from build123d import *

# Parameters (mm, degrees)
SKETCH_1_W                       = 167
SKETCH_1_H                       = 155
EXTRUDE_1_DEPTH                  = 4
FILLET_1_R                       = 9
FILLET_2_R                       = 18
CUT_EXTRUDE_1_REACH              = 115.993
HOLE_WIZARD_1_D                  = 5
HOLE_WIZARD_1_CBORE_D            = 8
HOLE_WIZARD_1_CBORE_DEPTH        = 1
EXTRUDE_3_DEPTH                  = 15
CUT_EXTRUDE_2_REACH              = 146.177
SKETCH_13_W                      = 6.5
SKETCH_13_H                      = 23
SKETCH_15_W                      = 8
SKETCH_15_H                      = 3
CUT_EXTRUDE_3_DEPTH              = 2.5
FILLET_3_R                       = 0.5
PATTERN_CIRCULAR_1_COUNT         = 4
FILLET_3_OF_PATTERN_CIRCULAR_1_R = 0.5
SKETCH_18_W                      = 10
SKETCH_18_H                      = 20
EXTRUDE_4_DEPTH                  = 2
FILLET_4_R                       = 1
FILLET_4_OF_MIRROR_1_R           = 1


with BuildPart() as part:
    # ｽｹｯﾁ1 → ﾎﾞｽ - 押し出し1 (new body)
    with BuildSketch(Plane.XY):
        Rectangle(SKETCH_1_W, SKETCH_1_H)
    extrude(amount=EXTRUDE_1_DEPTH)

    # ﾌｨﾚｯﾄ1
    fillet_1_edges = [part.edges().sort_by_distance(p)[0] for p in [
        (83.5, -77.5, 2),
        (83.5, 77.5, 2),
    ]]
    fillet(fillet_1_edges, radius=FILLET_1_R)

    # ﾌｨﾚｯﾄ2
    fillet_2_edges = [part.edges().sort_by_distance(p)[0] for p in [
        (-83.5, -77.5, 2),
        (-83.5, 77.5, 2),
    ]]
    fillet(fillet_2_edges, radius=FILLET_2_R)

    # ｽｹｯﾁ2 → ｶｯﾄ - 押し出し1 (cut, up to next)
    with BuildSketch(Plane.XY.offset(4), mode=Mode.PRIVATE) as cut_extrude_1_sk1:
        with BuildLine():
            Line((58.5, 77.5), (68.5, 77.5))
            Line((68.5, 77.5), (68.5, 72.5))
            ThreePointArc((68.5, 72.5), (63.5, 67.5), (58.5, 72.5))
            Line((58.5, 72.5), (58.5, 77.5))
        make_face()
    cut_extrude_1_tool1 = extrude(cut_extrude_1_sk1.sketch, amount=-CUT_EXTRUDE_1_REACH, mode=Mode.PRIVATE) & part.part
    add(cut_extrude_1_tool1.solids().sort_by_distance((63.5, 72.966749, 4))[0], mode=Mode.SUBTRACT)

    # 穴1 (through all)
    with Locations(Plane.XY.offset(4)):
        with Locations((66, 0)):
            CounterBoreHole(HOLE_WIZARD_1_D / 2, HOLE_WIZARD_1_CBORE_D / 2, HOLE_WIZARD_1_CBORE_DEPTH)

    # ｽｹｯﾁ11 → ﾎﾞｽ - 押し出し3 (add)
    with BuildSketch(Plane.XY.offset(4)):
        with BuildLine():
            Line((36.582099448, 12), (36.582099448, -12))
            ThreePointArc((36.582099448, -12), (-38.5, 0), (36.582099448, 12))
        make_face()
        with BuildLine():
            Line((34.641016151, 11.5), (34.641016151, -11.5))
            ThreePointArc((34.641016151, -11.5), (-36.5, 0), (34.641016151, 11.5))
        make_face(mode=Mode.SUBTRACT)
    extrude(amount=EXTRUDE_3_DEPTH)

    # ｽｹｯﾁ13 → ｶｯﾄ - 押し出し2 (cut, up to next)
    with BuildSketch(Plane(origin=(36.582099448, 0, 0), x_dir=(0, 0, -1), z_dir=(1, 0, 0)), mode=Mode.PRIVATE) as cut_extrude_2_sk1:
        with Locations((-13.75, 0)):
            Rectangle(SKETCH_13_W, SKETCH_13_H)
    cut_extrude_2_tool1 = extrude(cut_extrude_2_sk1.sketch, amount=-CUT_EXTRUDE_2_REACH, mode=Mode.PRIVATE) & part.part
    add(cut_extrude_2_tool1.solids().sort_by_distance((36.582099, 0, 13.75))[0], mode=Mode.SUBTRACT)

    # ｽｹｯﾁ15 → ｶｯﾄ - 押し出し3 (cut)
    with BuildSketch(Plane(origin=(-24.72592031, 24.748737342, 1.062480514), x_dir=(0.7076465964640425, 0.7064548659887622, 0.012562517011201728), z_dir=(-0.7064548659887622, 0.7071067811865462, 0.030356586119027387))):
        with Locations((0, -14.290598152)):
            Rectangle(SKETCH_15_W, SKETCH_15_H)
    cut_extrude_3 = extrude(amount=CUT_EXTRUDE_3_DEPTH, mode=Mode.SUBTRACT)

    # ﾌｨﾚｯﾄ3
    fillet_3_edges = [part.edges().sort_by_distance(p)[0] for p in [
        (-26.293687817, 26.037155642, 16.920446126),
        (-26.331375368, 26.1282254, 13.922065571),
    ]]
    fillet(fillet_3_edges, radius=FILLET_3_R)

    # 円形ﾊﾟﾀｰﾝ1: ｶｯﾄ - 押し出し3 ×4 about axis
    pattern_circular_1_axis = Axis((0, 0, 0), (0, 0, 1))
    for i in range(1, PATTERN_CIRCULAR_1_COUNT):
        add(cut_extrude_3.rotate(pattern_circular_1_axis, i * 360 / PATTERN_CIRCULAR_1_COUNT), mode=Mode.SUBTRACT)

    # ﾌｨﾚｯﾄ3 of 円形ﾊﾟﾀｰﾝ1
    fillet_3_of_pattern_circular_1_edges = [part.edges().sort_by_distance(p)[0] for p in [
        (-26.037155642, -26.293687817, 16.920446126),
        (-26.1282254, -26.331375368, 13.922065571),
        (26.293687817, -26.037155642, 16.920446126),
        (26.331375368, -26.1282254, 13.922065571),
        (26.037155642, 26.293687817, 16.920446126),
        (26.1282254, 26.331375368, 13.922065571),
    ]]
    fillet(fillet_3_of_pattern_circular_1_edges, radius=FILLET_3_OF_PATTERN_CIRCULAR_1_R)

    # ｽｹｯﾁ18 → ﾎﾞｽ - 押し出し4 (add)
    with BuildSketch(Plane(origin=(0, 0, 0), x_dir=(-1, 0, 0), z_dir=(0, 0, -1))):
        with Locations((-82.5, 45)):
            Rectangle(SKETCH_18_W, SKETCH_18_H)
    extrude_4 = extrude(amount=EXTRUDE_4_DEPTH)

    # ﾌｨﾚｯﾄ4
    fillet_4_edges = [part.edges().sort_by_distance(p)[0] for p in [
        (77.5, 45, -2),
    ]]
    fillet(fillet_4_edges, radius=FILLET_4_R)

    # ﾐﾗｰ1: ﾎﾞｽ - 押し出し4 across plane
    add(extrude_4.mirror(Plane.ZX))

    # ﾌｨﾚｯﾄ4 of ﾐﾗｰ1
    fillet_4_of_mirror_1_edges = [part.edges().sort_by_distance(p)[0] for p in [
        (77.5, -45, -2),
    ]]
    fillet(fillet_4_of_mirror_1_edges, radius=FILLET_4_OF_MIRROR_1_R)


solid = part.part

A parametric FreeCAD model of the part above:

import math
import FreeCAD as App
import Part
import Sketcher
from FreeCAD import Vector
Q = App.Units.Quantity


def edges_at(feature, points):
    """Names of the edges that pass closest to the given points."""
    edges = feature.Shape.Edges
    near = lambda p: min(range(len(edges)), key=lambda i: edges[i].distToShape(Part.Vertex(*p))[0])
    return sorted({f"Edge{near(p) + 1}" for p in points})

doc = App.newDocument("Part")
body = doc.addObject("PartDesign::Body", "Body")

sketch1 = doc.addObject("Sketcher::SketchObject", "Sketch")
body.addObject(sketch1)
sketch1.AttachmentSupport = (doc.XY_Plane, [""])
sketch1.MapMode = "FlatFace"
sketch1.addGeometry(Part.LineSegment(Vector(-84, 78, 0), Vector(-84, -78, 0)), False)
sketch1.addGeometry(Part.LineSegment(Vector(-84, -78, 0), Vector(84, -78, 0)), False)
sketch1.addGeometry(Part.LineSegment(Vector(84, -78, 0), Vector(84, 78, 0)), False)
sketch1.addGeometry(Part.LineSegment(Vector(84, 78, 0), Vector(-84, 78, 0)), False)
sketch1.addConstraint(Sketcher.Constraint("Coincident", 0, 2, 1, 1))
sketch1.addConstraint(Sketcher.Constraint("Coincident", 1, 2, 2, 1))
sketch1.addConstraint(Sketcher.Constraint("Coincident", 2, 2, 3, 1))
sketch1.addConstraint(Sketcher.Constraint("Coincident", 3, 2, 0, 1))
sketch1.addConstraint(Sketcher.Constraint("Vertical", 0))
sketch1.addConstraint(Sketcher.Constraint("Horizontal", 1))
sketch1.addConstraint(Sketcher.Constraint("Vertical", 2))
sketch1.addConstraint(Sketcher.Constraint("Horizontal", 3))
sketch1.addConstraint(Sketcher.Constraint("Symmetric", 0, 2, 2, 2, -1, 1))
sketch1.addConstraint(Sketcher.Constraint("DistanceX", 1, 1, 1, 2, Q("167 mm")))
sketch1.addConstraint(Sketcher.Constraint("DistanceY", 0, 2, 0, 1, Q("155 mm")))
pad1 = doc.addObject("PartDesign::Pad", "Pad")
body.addObject(pad1)
pad1.Profile = sketch1
pad1.Length = 4
doc.recompute()

fillet = doc.addObject("PartDesign::Fillet", "Fillet")
body.addObject(fillet)
fillet.Base = (pad1, edges_at(pad1, [(83.5, -77.5, 2), (83.5, 77.5, 2)]))
fillet.Radius = 9
doc.recompute()

fillet2 = doc.addObject("PartDesign::Fillet", "Fillet001")
body.addObject(fillet2)
fillet2.Base = (fillet, edges_at(fillet, [(-83.5, -77.5, 2), (-83.5, 77.5, 2)]))
fillet2.Radius = 18

sketch2 = doc.addObject("Sketcher::SketchObject", "Sketch001")
body.addObject(sketch2)
sketch2.AttachmentSupport = (doc.XY_Plane, [""])
sketch2.MapMode = "FlatFace"
sketch2.AttachmentOffset = App.Placement(Vector(0, 0, 4), App.Rotation())
sketch2.addGeometry(Part.LineSegment(Vector(68, 78, 0), Vector(58, 78, 0)), False)
sketch2.addGeometry(Part.LineSegment(Vector(58, 78, 0), Vector(58, 72, 0)), False)
sketch2.addGeometry(Part.ArcOfCircle(Part.Circle(Vector(64, 72, 0), Vector(0, 0, 1), 5), math.radians(180), math.radians(360)), False)
sketch2.addGeometry(Part.LineSegment(Vector(68, 72, 0), Vector(68, 78, 0)), False)
sketch2.addConstraint(Sketcher.Constraint("Coincident", 0, 2, 1, 1))
sketch2.addConstraint(Sketcher.Constraint("Tangent", 1, 2, 2, 1))
sketch2.addConstraint(Sketcher.Constraint("Tangent", 2, 2, 3, 1))
sketch2.addConstraint(Sketcher.Constraint("Coincident", 3, 2, 0, 1))
sketch2.addConstraint(Sketcher.Constraint("Horizontal", 0))
sketch2.addConstraint(Sketcher.Constraint("Vertical", 1))
sketch2.addConstraint(Sketcher.Constraint("Vertical", 3))
sketch2.addConstraint(Sketcher.Constraint("Radius", 2, Q("5 mm")))
sketch2.addConstraint(Sketcher.Constraint("DistanceY", 1, 2, 1, 1, Q("5 mm")))
sketch2.addConstraint(Sketcher.Constraint("DistanceX", -1, 1, 2, 3, Q("63.5 mm")))
sketch2.addConstraint(Sketcher.Constraint("DistanceY", -1, 1, 2, 3, Q("72.5 mm")))
pocket1 = doc.addObject("PartDesign::Pocket", "Pocket")
body.addObject(pocket1)
pocket1.Profile = sketch2
pocket1.Type = "UpToFirst"

sketch3 = doc.addObject("Sketcher::SketchObject", "Sketch002")
body.addObject(sketch3)
sketch3.AttachmentSupport = (doc.XY_Plane, [""])
sketch3.MapMode = "FlatFace"
sketch3.AttachmentOffset = App.Placement(Vector(0, 0, 4), App.Rotation())
sketch3.addGeometry(Part.Circle(Vector(66, 0, 0), Vector(0, 0, 1), 2.5), False)
sketch3.addConstraint(Sketcher.Constraint("PointOnObject", 0, 3, -1))
sketch3.addConstraint(Sketcher.Constraint("Diameter", 0, Q("5 mm")))
sketch3.addConstraint(Sketcher.Constraint("DistanceX", -1, 1, 0, 3, Q("66 mm")))
doc.recompute()
hole = doc.addObject("PartDesign::Hole", "Hole")
body.addObject(hole)
hole.Profile = sketch3
hole.ThreadType = "None"
hole.Diameter = 5
hole.DepthType = "ThroughAll"
hole.HoleCutType = "Counterbore"
hole.HoleCutDiameter = 8
hole.HoleCutDepth = 1

sketch4 = doc.addObject("Sketcher::SketchObject", "Sketch003")
body.addObject(sketch4)
sketch4.AttachmentSupport = (doc.XY_Plane, [""])
sketch4.MapMode = "FlatFace"
sketch4.AttachmentOffset = App.Placement(Vector(0, 0, 4), App.Rotation())
sketch4.addGeometry(Part.LineSegment(Vector(37, -12, 0), Vector(37, 12, 0)), False)
sketch4.addGeometry(Part.ArcOfCircle(Part.Circle(Vector(0, 0, 0), Vector(0, 0, 1), 38), math.radians(18), math.radians(342)), False)
sketch4.addGeometry(Part.LineSegment(Vector(35, 12, 0), Vector(35, -12, 0)), False)
sketch4.addGeometry(Part.ArcOfCircle(Part.Circle(Vector(0, 0, 0), Vector(0, 0, 1), 36), math.radians(18), math.radians(342)), False)
sketch4.addConstraint(Sketcher.Constraint("Coincident", 0, 1, 1, 2))
sketch4.addConstraint(Sketcher.Constraint("Coincident", 1, 1, 0, 2))
sketch4.addConstraint(Sketcher.Constraint("Coincident", 2, 1, 3, 1))
sketch4.addConstraint(Sketcher.Constraint("Coincident", 3, 2, 2, 2))
sketch4.addConstraint(Sketcher.Constraint("Vertical", 0))
sketch4.addConstraint(Sketcher.Constraint("Vertical", 2))
sketch4.addConstraint(Sketcher.Constraint("Coincident", 1, 3, -1, 1))
sketch4.addConstraint(Sketcher.Constraint("Coincident", 3, 3, -1, 1))
sketch4.addConstraint(Sketcher.Constraint("Radius", 1, Q("38.5 mm")))
sketch4.addConstraint(Sketcher.Constraint("Radius", 3, Q("36.5 mm")))
sketch4.addConstraint(Sketcher.Constraint("DistanceY", 0, 1, 0, 2, Q("24 mm")))
sketch4.addConstraint(Sketcher.Constraint("DistanceY", 2, 2, 2, 1, Q("23 mm")))
pad2 = doc.addObject("PartDesign::Pad", "Pad001")
body.addObject(pad2)
pad2.Profile = sketch4
pad2.Length = 15

sketch5 = doc.addObject("Sketcher::SketchObject", "Sketch004")
body.addObject(sketch5)
sketch5.AttachmentSupport = (doc.YZ_Plane, [""])
sketch5.MapMode = "FlatFace"
sketch5.AttachmentOffset = App.Placement(Vector(0, 0, 36.582099), App.Rotation())
sketch5.addGeometry(Part.LineSegment(Vector(12, 17, 0), Vector(-12, 17, 0)), False)
sketch5.addGeometry(Part.LineSegment(Vector(-12, 17, 0), Vector(-12, 10, 0)), False)
sketch5.addGeometry(Part.LineSegment(Vector(-12, 10, 0), Vector(12, 10, 0)), False)
sketch5.addGeometry(Part.LineSegment(Vector(12, 10, 0), Vector(12, 17, 0)), False)
sketch5.addConstraint(Sketcher.Constraint("Coincident", 0, 2, 1, 1))
sketch5.addConstraint(Sketcher.Constraint("Coincident", 1, 2, 2, 1))
sketch5.addConstraint(Sketcher.Constraint("Coincident", 2, 2, 3, 1))
sketch5.addConstraint(Sketcher.Constraint("Coincident", 3, 2, 0, 1))
sketch5.addConstraint(Sketcher.Constraint("Horizontal", 0))
sketch5.addConstraint(Sketcher.Constraint("Vertical", 1))
sketch5.addConstraint(Sketcher.Constraint("Horizontal", 2))
sketch5.addConstraint(Sketcher.Constraint("Vertical", 3))
sketch5.addConstraint(Sketcher.Constraint("DistanceX", 0, 2, 0, 1, Q("23 mm")))
sketch5.addConstraint(Sketcher.Constraint("DistanceY", 1, 2, 1, 1, Q("6.5 mm")))
sketch5.addConstraint(Sketcher.Constraint("DistanceY", -1, 1, 0, 2, Q("17 mm")))
sketch5.addConstraint(Sketcher.Constraint("DistanceX", 0, 2, -1, 1, Q("11.5 mm")))
pocket2 = doc.addObject("PartDesign::Pocket", "Pocket001")
body.addObject(pocket2)
pocket2.Profile = sketch5
pocket2.Type = "UpToFirst"

sketch6 = doc.addObject("Sketcher::SketchObject", "Sketch005")
body.addObject(sketch6)
sketch6.Placement = App.Placement(Vector(-24.72592, 24.748737, 1.062481), App.Rotation(Vector(0.707646596, 0.706454866, 0.012562517), Vector(-0.012562517, 0.030356586, -0.999460184), Vector(-0.706454866, 0.707106781, 0.030356586), "ZXY"))
sketch6.addGeometry(Part.LineSegment(Vector(-4, -12.8, 0), Vector(-4, -15.8, 0)), False)
sketch6.addGeometry(Part.LineSegment(Vector(-4, -15.8, 0), Vector(4, -15.8, 0)), False)
sketch6.addGeometry(Part.LineSegment(Vector(4, -15.8, 0), Vector(4, -12.8, 0)), False)
sketch6.addGeometry(Part.LineSegment(Vector(4, -12.8, 0), Vector(-4, -12.8, 0)), False)
sketch6.addConstraint(Sketcher.Constraint("Coincident", 0, 2, 1, 1))
sketch6.addConstraint(Sketcher.Constraint("Coincident", 1, 2, 2, 1))
sketch6.addConstraint(Sketcher.Constraint("Coincident", 2, 2, 3, 1))
sketch6.addConstraint(Sketcher.Constraint("Coincident", 3, 2, 0, 1))
sketch6.addConstraint(Sketcher.Constraint("Vertical", 0))
sketch6.addConstraint(Sketcher.Constraint("Horizontal", 1))
sketch6.addConstraint(Sketcher.Constraint("Vertical", 2))
sketch6.addConstraint(Sketcher.Constraint("Horizontal", 3))
sketch6.addConstraint(Sketcher.Constraint("DistanceX", 1, 1, 1, 2, Q("8 mm")))
sketch6.addConstraint(Sketcher.Constraint("DistanceY", 0, 2, 0, 1, Q("3 mm")))
sketch6.addConstraint(Sketcher.Constraint("DistanceX", 0, 2, -1, 1, Q("4 mm")))
sketch6.addConstraint(Sketcher.Constraint("DistanceY", 0, 2, -1, 1, Q("15.790598 mm")))
pocket3 = doc.addObject("PartDesign::Pocket", "Pocket002")
body.addObject(pocket3)
pocket3.Profile = sketch6
pocket3.Length = 2.5
pocket3.Reversed = True
doc.recompute()

fillet3 = doc.addObject("PartDesign::Fillet", "Fillet002")
body.addObject(fillet3)
fillet3.Base = (pocket3, edges_at(pocket3, [(-26.294, 26.037, 16.92), (-26.331, 26.128, 13.922)]))
fillet3.Radius = 0.5
doc.recompute()

polarpattern = doc.addObject("PartDesign::PolarPattern", "PolarPattern")
body.addObject(polarpattern)
polarpattern.Originals = [pocket3]
polarpattern.Axis = (doc.Z_Axis, [""])
polarpattern.Angle = 360
polarpattern.Occurrences = 4
body.Tip = polarpattern
doc.recompute()

fillet4 = doc.addObject("PartDesign::Fillet", "Fillet003")
body.addObject(fillet4)
fillet4.Base = (polarpattern, edges_at(polarpattern, [
    (-26.037, -26.294, 16.92),
    (-26.128, -26.331, 13.922),
    (26.294, -26.037, 16.92),
    (26.331, -26.128, 13.922),
    (26.037, 26.294, 16.92),
    (26.128, 26.331, 13.922),
]))
fillet4.Radius = 0.5

sketch7 = doc.addObject("Sketcher::SketchObject", "Sketch006")
body.addObject(sketch7)
sketch7.AttachmentSupport = (doc.XY_Plane, [""])
sketch7.MapMode = "FlatFace"
sketch7.addGeometry(Part.LineSegment(Vector(88, 55, 0), Vector(88, 35, 0)), False)
sketch7.addGeometry(Part.LineSegment(Vector(88, 35, 0), Vector(78, 35, 0)), False)
sketch7.addGeometry(Part.LineSegment(Vector(78, 35, 0), Vector(78, 55, 0)), False)
sketch7.addGeometry(Part.LineSegment(Vector(78, 55, 0), Vector(88, 55, 0)), False)
sketch7.addConstraint(Sketcher.Constraint("Coincident", 0, 2, 1, 1))
sketch7.addConstraint(Sketcher.Constraint("Coincident", 1, 2, 2, 1))
sketch7.addConstraint(Sketcher.Constraint("Coincident", 2, 2, 3, 1))
sketch7.addConstraint(Sketcher.Constraint("Coincident", 3, 2, 0, 1))
sketch7.addConstraint(Sketcher.Constraint("Vertical", 0))
sketch7.addConstraint(Sketcher.Constraint("Horizontal", 1))
sketch7.addConstraint(Sketcher.Constraint("Vertical", 2))
sketch7.addConstraint(Sketcher.Constraint("Horizontal", 3))
sketch7.addConstraint(Sketcher.Constraint("DistanceX", 1, 2, 1, 1, Q("10 mm")))
sketch7.addConstraint(Sketcher.Constraint("DistanceY", 0, 2, 0, 1, Q("20 mm")))
sketch7.addConstraint(Sketcher.Constraint("DistanceY", -1, 1, 0, 2, Q("35 mm")))
sketch7.addConstraint(Sketcher.Constraint("DistanceX", -1, 1, 0, 2, Q("87.5 mm")))
pad3 = doc.addObject("PartDesign::Pad", "Pad002")
body.addObject(pad3)
pad3.Profile = sketch7
pad3.Length = 2
pad3.Reversed = True
doc.recompute()

fillet5 = doc.addObject("PartDesign::Fillet", "Fillet004")
body.addObject(fillet5)
fillet5.Base = (pad3, edges_at(pad3, [(77.5, 45, -2)]))
fillet5.Radius = 1
doc.recompute()

mirrored = doc.addObject("PartDesign::Mirrored", "Mirrored")
body.addObject(mirrored)
mirrored.Originals = [pad3]
mirrored.MirrorPlane = (doc.XZ_Plane, [""])
body.Tip = mirrored
doc.recompute()

fillet6 = doc.addObject("PartDesign::Fillet", "Fillet005")
body.addObject(fillet6)
fillet6.Base = (mirrored, edges_at(mirrored, [(77.5, -45, -2)]))
fillet6.Radius = 1

doc.recompute()
